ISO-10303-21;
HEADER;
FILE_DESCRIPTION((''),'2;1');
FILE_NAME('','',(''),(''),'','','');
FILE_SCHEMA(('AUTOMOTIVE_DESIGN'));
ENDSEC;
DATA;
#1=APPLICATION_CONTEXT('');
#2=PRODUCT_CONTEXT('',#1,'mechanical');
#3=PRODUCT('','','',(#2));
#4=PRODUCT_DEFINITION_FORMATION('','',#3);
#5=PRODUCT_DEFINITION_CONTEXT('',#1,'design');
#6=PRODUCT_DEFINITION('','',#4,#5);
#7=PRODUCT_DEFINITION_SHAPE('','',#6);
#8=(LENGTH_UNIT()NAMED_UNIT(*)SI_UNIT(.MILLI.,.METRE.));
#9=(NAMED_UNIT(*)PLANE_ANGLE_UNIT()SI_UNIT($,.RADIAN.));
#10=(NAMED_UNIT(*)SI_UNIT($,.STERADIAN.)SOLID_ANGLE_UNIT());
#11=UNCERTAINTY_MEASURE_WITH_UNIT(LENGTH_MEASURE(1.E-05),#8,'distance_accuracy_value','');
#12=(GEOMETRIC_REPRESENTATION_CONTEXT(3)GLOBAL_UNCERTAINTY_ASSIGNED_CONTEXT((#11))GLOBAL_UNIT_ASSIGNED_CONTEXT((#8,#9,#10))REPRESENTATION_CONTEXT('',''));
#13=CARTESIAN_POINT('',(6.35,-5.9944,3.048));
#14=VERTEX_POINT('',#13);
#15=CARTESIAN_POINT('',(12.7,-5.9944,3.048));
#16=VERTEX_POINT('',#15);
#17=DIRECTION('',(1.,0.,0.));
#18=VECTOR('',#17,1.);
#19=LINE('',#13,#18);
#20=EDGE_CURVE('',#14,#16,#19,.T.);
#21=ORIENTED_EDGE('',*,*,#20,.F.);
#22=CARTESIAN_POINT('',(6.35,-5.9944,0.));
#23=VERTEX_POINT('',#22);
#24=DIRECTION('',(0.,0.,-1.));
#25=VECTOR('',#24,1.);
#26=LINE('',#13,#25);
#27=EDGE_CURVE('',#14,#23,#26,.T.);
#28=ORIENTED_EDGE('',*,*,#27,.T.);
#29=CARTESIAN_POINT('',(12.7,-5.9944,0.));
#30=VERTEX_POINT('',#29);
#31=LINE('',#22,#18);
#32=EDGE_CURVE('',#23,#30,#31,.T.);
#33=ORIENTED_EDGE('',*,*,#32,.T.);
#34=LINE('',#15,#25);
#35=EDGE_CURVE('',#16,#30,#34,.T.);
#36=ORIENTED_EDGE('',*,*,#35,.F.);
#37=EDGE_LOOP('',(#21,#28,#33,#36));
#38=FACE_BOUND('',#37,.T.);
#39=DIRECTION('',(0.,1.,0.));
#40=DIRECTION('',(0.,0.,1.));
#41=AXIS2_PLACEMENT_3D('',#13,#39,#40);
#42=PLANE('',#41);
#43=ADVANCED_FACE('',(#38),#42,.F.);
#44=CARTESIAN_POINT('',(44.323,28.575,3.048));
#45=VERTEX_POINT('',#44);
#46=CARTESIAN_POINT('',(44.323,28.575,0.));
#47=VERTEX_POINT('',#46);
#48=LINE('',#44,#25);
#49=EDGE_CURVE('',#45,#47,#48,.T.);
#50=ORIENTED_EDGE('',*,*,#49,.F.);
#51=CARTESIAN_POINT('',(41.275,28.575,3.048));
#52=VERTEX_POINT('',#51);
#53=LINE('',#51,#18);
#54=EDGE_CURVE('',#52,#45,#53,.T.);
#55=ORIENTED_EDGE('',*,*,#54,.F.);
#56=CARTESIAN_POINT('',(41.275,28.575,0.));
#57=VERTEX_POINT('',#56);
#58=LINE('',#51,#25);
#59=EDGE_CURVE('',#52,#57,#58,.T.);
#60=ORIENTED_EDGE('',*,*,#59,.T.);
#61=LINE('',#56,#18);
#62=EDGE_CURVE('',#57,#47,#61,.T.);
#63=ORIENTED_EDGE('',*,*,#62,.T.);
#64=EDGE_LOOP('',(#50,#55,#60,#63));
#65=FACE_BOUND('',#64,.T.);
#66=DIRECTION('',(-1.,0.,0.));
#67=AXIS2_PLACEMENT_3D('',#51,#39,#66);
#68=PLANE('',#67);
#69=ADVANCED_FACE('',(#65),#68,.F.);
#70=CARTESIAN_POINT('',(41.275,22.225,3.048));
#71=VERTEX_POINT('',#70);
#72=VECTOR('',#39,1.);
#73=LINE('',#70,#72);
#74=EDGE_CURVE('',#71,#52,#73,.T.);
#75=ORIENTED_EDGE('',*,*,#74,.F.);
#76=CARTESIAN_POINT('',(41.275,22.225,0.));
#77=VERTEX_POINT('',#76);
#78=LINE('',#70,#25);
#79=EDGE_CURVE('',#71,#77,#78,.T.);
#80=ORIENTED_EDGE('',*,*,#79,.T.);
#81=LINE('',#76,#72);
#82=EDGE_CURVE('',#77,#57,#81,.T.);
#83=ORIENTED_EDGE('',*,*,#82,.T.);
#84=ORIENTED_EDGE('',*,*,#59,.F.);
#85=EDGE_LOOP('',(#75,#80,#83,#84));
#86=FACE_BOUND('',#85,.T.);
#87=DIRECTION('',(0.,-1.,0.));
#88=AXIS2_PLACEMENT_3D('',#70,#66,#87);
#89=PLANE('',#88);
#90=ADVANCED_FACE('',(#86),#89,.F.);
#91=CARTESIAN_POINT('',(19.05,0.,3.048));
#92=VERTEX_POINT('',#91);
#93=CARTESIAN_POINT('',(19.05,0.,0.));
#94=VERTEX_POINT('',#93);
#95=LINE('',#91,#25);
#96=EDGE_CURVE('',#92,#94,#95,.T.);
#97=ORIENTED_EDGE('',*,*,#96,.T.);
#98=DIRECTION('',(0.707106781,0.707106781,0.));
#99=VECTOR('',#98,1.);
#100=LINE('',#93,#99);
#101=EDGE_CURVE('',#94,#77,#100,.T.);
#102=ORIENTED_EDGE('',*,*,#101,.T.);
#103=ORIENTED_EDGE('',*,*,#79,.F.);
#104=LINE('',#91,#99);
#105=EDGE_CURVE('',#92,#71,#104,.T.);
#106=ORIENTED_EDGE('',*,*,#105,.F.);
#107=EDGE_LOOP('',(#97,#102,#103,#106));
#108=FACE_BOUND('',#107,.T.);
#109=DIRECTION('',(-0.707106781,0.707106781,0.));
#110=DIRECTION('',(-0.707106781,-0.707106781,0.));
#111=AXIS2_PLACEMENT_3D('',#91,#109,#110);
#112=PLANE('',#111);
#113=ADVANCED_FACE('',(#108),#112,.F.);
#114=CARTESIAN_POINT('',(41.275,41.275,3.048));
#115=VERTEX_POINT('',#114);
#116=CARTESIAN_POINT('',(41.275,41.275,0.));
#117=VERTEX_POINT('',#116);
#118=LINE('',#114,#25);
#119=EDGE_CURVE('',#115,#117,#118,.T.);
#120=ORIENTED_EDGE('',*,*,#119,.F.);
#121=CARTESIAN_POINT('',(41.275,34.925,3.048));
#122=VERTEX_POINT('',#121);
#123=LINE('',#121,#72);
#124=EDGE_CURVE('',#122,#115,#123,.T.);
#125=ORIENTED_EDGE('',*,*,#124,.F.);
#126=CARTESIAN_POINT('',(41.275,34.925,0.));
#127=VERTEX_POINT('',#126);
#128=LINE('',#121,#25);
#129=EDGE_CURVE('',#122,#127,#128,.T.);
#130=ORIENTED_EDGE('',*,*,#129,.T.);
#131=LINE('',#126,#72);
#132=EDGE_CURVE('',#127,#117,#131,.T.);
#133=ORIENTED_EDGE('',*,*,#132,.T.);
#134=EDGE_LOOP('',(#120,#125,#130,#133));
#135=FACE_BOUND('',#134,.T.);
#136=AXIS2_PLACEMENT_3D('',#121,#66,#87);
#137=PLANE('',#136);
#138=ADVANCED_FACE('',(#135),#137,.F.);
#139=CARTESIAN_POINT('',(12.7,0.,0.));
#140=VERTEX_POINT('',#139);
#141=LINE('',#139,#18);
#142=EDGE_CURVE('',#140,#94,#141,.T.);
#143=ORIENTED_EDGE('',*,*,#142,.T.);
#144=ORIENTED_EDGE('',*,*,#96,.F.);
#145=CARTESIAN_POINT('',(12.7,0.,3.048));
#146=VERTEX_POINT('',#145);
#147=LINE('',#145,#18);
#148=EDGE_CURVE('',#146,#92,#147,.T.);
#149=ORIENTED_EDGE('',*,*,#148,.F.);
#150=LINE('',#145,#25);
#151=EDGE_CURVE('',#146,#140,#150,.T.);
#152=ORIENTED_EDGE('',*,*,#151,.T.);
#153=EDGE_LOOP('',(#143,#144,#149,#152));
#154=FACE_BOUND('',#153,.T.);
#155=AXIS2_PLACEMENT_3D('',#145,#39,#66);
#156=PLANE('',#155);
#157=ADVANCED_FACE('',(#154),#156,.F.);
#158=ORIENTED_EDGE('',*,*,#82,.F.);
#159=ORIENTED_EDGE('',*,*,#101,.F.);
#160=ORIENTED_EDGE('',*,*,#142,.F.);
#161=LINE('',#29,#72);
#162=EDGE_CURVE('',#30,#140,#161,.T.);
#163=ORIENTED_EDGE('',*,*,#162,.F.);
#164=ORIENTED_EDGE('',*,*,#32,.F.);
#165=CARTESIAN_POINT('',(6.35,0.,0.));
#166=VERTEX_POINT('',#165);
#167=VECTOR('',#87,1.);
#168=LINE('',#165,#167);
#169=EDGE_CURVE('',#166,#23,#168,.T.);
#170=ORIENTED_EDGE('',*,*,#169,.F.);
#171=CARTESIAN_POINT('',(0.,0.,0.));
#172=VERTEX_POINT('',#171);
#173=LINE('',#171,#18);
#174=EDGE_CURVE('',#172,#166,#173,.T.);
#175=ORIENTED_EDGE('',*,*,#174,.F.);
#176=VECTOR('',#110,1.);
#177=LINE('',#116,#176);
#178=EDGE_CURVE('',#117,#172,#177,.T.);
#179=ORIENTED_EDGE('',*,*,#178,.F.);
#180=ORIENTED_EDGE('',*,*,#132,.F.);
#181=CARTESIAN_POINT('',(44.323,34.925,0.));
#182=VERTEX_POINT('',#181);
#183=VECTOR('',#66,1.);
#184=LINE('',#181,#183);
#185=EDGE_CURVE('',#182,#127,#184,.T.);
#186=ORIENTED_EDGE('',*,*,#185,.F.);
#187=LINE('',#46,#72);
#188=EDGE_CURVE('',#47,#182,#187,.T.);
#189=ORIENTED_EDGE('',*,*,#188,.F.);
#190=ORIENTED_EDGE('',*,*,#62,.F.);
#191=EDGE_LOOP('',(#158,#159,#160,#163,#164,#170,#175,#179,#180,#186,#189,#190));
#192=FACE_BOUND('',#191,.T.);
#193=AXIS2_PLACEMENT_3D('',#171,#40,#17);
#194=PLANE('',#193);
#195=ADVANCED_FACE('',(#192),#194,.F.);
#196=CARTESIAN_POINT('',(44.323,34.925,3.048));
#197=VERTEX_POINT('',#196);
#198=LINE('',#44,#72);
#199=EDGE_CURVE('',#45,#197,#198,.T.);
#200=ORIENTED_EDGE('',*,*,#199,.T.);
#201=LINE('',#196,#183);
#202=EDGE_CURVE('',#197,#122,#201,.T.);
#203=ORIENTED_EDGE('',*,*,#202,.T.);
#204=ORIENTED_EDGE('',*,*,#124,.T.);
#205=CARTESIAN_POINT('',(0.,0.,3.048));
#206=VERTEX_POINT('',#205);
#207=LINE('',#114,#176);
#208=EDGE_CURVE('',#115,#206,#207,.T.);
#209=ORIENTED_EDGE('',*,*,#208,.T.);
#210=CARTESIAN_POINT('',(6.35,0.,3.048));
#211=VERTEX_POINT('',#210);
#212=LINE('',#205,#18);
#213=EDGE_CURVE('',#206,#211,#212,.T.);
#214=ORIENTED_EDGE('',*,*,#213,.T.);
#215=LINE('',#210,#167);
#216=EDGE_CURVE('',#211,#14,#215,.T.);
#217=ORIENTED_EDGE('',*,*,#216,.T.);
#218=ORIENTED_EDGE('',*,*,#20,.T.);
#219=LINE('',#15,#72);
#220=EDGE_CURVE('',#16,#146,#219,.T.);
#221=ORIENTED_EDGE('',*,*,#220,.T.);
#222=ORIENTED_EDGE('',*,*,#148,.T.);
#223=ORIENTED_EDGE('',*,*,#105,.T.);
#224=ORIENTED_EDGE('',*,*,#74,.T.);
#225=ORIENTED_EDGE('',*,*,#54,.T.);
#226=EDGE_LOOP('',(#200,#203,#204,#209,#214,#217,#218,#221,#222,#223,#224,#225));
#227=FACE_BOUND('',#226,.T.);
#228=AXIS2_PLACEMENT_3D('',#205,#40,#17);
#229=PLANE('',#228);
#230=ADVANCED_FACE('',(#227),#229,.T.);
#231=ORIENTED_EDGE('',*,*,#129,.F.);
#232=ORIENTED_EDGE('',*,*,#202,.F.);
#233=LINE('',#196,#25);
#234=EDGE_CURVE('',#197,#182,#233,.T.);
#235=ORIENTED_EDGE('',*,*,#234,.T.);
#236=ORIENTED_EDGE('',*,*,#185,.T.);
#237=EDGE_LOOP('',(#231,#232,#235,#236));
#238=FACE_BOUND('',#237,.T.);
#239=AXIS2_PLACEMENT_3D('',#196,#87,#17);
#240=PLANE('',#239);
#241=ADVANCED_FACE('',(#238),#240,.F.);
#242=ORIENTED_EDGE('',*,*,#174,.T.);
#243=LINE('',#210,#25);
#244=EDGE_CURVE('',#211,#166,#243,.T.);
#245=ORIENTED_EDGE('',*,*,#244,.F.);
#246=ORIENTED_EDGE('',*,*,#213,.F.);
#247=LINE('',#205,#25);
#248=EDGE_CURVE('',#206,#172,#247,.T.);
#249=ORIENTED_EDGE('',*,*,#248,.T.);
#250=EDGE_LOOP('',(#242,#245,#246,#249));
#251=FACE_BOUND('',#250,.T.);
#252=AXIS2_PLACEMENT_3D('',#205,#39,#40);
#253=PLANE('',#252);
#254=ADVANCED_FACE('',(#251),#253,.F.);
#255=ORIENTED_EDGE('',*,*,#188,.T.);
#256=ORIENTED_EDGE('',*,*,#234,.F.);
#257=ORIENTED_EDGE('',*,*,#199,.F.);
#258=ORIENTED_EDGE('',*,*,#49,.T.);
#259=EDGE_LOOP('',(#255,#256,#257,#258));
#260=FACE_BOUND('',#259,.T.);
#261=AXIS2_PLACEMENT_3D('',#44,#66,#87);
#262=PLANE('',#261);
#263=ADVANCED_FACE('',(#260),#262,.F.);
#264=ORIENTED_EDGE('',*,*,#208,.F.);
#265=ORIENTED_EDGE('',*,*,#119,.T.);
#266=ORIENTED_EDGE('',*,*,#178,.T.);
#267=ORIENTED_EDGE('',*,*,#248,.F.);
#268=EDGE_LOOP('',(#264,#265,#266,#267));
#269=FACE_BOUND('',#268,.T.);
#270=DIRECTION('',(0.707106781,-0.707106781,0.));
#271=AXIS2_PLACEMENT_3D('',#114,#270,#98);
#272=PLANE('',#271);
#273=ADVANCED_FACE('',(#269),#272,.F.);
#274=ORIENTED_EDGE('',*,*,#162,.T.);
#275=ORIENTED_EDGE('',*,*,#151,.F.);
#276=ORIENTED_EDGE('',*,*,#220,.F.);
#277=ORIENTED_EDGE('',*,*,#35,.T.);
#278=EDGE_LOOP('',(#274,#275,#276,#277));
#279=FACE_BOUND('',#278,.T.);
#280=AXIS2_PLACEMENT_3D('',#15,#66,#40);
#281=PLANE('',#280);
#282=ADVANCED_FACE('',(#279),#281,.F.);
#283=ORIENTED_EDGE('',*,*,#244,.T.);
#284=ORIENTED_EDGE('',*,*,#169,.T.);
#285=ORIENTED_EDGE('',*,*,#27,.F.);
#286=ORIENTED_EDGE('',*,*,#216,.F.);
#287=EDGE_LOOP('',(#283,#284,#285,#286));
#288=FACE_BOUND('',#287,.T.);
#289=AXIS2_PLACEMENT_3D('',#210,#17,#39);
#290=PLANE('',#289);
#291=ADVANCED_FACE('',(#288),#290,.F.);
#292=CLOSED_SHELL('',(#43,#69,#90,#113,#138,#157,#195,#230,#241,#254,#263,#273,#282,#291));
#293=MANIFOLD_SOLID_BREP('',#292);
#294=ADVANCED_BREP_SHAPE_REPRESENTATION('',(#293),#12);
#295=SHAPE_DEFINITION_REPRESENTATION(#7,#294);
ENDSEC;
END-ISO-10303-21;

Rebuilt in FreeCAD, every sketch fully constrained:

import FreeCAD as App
import Part
import Sketcher
Q = App.Units.Quantity

doc = App.newDocument("Part")
body = doc.addObject("PartDesign::Body", "Body")

sketch1 = body.newObject("Sketcher::SketchObject", "Sketch")
sketch1.AttachmentSupport = (doc.getObject("XY_Plane"), [""])
sketch1.MapMode = "FlatFace"
sketch1.addGeometry(Part.LineSegment(App.Vector(0, 0, 0), App.Vector(6.3, 0, 0)), False)
sketch1.addGeometry(Part.LineSegment(App.Vector(6.3, 0, 0), App.Vector(6.3, -6, 0)), False)
sketch1.addGeometry(Part.LineSegment(App.Vector(6.3, -6, 0), App.Vector(12.7, -6, 0)), False)
sketch1.addGeometry(Part.LineSegment(App.Vector(12.7, -6, 0), App.Vector(12.7, 0, 0)), False)
sketch1.addGeometry(Part.LineSegment(App.Vector(12.7, 0, 0), App.Vector(19.1, 0, 0)), False)
sketch1.addGeometry(Part.LineSegment(App.Vector(19.1, 0, 0), App.Vector(41.3, 22.2, 0)), False)
sketch1.addGeometry(Part.LineSegment(App.Vector(41.3, 22.2, 0), App.Vector(41.3, 28.6, 0)), False)
sketch1.addGeometry(Part.LineSegment(App.Vector(41.3, 28.6, 0), App.Vector(44.3, 28.6, 0)), False)
sketch1.addGeometry(Part.LineSegment(App.Vector(44.3, 28.6, 0), App.Vector(44.3, 34.9, 0)), False)
sketch1.addGeometry(Part.LineSegment(App.Vector(44.3, 34.9, 0), App.Vector(41.3, 34.9, 0)), False)
sketch1.addGeometry(Part.LineSegment(App.Vector(41.3, 34.9, 0), App.Vector(41.3, 41.3, 0)), False)
sketch1.addGeometry(Part.LineSegment(App.Vector(41.3, 41.3, 0), App.Vector(0, 0, 0)), False)
sketch1.addConstraint(Sketcher.Constraint("Coincident", 0, 2, 1, 1))
sketch1.addConstraint(Sketcher.Constraint("Coincident", 1, 2, 2, 1))
sketch1.addConstraint(Sketcher.Constraint("Coincident", 2, 2, 3, 1))
sketch1.addConstraint(Sketcher.Constraint("Coincident", 3, 2, 4, 1))
sketch1.addConstraint(Sketcher.Constraint("Coincident", 4, 2, 5, 1))
sketch1.addConstraint(Sketcher.Constraint("Coincident", 5, 2, 6, 1))
sketch1.addConstraint(Sketcher.Constraint("Coincident", 6, 2, 7, 1))
sketch1.addConstraint(Sketcher.Constraint("Coincident", 7, 2, 8, 1))
sketch1.addConstraint(Sketcher.Constraint("Coincident", 8, 2, 9, 1))
sketch1.addConstraint(Sketcher.Constraint("Coincident", 9, 2, 10, 1))
sketch1.addConstraint(Sketcher.Constraint("Coincident", 10, 2, 11, 1))
sketch1.addConstraint(Sketcher.Constraint("Coincident", 11, 2, 0, 1))
sketch1.addConstraint(Sketcher.Constraint("Horizontal", 0))
sketch1.addConstraint(Sketcher.Constraint("Vertical", 1))
sketch1.addConstraint(Sketcher.Constraint("Horizontal", 2))
sketch1.addConstraint(Sketcher.Constraint("Vertical", 3))
sketch1.addConstraint(Sketcher.Constraint("Horizontal", 4))
sketch1.addConstraint(Sketcher.Constraint("Vertical", 6))
sketch1.addConstraint(Sketcher.Constraint("Horizontal", 7))
sketch1.addConstraint(Sketcher.Constraint("Vertical", 8))
sketch1.addConstraint(Sketcher.Constraint("Horizontal", 9))
sketch1.addConstraint(Sketcher.Constraint("Vertical", 10))
sketch1.addConstraint(Sketcher.Constraint("Coincident", 11, 2, -1, 1))
sketch1.addConstraint(Sketcher.Constraint("PointOnObject", 3, 2, -1))
sketch1.addConstraint(Sketcher.Constraint("Parallel", 5, 11))
sketch1.addConstraint(Sketcher.Constraint("Vertical", 6, 2, 9, 2))
sketch1.addConstraint(Sketcher.Constraint("Equal", 0, 2))
sketch1.addConstraint(Sketcher.Constraint("Equal", 2, 4))
sketch1.addConstraint(Sketcher.Constraint("Equal", 4, 6))
sketch1.addConstraint(Sketcher.Constraint("Equal", 6, 8))
sketch1.addConstraint(Sketcher.Constraint("Equal", 8, 10))
sketch1.addConstraint(Sketcher.Constraint("DistanceX", 0, 1, 0, 2, Q("0.25 in")))
sketch1.addConstraint(Sketcher.Constraint("DistanceX", 7, 1, 7, 2, Q("0.12 in")))
sketch1.addConstraint(Sketcher.Constraint("DistanceY", 1, 2, 1, 1, Q("0.236 in")))
sketch1.addConstraint(Sketcher.Constraint("DistanceX", -1, 1, 5, 2, Q("1.625 in")))
pad1 = body.newObject("PartDesign::Pad", "Pad")
pad1.Profile = sketch1
pad1.Length = Q("0.12 in")

doc.recompute()
